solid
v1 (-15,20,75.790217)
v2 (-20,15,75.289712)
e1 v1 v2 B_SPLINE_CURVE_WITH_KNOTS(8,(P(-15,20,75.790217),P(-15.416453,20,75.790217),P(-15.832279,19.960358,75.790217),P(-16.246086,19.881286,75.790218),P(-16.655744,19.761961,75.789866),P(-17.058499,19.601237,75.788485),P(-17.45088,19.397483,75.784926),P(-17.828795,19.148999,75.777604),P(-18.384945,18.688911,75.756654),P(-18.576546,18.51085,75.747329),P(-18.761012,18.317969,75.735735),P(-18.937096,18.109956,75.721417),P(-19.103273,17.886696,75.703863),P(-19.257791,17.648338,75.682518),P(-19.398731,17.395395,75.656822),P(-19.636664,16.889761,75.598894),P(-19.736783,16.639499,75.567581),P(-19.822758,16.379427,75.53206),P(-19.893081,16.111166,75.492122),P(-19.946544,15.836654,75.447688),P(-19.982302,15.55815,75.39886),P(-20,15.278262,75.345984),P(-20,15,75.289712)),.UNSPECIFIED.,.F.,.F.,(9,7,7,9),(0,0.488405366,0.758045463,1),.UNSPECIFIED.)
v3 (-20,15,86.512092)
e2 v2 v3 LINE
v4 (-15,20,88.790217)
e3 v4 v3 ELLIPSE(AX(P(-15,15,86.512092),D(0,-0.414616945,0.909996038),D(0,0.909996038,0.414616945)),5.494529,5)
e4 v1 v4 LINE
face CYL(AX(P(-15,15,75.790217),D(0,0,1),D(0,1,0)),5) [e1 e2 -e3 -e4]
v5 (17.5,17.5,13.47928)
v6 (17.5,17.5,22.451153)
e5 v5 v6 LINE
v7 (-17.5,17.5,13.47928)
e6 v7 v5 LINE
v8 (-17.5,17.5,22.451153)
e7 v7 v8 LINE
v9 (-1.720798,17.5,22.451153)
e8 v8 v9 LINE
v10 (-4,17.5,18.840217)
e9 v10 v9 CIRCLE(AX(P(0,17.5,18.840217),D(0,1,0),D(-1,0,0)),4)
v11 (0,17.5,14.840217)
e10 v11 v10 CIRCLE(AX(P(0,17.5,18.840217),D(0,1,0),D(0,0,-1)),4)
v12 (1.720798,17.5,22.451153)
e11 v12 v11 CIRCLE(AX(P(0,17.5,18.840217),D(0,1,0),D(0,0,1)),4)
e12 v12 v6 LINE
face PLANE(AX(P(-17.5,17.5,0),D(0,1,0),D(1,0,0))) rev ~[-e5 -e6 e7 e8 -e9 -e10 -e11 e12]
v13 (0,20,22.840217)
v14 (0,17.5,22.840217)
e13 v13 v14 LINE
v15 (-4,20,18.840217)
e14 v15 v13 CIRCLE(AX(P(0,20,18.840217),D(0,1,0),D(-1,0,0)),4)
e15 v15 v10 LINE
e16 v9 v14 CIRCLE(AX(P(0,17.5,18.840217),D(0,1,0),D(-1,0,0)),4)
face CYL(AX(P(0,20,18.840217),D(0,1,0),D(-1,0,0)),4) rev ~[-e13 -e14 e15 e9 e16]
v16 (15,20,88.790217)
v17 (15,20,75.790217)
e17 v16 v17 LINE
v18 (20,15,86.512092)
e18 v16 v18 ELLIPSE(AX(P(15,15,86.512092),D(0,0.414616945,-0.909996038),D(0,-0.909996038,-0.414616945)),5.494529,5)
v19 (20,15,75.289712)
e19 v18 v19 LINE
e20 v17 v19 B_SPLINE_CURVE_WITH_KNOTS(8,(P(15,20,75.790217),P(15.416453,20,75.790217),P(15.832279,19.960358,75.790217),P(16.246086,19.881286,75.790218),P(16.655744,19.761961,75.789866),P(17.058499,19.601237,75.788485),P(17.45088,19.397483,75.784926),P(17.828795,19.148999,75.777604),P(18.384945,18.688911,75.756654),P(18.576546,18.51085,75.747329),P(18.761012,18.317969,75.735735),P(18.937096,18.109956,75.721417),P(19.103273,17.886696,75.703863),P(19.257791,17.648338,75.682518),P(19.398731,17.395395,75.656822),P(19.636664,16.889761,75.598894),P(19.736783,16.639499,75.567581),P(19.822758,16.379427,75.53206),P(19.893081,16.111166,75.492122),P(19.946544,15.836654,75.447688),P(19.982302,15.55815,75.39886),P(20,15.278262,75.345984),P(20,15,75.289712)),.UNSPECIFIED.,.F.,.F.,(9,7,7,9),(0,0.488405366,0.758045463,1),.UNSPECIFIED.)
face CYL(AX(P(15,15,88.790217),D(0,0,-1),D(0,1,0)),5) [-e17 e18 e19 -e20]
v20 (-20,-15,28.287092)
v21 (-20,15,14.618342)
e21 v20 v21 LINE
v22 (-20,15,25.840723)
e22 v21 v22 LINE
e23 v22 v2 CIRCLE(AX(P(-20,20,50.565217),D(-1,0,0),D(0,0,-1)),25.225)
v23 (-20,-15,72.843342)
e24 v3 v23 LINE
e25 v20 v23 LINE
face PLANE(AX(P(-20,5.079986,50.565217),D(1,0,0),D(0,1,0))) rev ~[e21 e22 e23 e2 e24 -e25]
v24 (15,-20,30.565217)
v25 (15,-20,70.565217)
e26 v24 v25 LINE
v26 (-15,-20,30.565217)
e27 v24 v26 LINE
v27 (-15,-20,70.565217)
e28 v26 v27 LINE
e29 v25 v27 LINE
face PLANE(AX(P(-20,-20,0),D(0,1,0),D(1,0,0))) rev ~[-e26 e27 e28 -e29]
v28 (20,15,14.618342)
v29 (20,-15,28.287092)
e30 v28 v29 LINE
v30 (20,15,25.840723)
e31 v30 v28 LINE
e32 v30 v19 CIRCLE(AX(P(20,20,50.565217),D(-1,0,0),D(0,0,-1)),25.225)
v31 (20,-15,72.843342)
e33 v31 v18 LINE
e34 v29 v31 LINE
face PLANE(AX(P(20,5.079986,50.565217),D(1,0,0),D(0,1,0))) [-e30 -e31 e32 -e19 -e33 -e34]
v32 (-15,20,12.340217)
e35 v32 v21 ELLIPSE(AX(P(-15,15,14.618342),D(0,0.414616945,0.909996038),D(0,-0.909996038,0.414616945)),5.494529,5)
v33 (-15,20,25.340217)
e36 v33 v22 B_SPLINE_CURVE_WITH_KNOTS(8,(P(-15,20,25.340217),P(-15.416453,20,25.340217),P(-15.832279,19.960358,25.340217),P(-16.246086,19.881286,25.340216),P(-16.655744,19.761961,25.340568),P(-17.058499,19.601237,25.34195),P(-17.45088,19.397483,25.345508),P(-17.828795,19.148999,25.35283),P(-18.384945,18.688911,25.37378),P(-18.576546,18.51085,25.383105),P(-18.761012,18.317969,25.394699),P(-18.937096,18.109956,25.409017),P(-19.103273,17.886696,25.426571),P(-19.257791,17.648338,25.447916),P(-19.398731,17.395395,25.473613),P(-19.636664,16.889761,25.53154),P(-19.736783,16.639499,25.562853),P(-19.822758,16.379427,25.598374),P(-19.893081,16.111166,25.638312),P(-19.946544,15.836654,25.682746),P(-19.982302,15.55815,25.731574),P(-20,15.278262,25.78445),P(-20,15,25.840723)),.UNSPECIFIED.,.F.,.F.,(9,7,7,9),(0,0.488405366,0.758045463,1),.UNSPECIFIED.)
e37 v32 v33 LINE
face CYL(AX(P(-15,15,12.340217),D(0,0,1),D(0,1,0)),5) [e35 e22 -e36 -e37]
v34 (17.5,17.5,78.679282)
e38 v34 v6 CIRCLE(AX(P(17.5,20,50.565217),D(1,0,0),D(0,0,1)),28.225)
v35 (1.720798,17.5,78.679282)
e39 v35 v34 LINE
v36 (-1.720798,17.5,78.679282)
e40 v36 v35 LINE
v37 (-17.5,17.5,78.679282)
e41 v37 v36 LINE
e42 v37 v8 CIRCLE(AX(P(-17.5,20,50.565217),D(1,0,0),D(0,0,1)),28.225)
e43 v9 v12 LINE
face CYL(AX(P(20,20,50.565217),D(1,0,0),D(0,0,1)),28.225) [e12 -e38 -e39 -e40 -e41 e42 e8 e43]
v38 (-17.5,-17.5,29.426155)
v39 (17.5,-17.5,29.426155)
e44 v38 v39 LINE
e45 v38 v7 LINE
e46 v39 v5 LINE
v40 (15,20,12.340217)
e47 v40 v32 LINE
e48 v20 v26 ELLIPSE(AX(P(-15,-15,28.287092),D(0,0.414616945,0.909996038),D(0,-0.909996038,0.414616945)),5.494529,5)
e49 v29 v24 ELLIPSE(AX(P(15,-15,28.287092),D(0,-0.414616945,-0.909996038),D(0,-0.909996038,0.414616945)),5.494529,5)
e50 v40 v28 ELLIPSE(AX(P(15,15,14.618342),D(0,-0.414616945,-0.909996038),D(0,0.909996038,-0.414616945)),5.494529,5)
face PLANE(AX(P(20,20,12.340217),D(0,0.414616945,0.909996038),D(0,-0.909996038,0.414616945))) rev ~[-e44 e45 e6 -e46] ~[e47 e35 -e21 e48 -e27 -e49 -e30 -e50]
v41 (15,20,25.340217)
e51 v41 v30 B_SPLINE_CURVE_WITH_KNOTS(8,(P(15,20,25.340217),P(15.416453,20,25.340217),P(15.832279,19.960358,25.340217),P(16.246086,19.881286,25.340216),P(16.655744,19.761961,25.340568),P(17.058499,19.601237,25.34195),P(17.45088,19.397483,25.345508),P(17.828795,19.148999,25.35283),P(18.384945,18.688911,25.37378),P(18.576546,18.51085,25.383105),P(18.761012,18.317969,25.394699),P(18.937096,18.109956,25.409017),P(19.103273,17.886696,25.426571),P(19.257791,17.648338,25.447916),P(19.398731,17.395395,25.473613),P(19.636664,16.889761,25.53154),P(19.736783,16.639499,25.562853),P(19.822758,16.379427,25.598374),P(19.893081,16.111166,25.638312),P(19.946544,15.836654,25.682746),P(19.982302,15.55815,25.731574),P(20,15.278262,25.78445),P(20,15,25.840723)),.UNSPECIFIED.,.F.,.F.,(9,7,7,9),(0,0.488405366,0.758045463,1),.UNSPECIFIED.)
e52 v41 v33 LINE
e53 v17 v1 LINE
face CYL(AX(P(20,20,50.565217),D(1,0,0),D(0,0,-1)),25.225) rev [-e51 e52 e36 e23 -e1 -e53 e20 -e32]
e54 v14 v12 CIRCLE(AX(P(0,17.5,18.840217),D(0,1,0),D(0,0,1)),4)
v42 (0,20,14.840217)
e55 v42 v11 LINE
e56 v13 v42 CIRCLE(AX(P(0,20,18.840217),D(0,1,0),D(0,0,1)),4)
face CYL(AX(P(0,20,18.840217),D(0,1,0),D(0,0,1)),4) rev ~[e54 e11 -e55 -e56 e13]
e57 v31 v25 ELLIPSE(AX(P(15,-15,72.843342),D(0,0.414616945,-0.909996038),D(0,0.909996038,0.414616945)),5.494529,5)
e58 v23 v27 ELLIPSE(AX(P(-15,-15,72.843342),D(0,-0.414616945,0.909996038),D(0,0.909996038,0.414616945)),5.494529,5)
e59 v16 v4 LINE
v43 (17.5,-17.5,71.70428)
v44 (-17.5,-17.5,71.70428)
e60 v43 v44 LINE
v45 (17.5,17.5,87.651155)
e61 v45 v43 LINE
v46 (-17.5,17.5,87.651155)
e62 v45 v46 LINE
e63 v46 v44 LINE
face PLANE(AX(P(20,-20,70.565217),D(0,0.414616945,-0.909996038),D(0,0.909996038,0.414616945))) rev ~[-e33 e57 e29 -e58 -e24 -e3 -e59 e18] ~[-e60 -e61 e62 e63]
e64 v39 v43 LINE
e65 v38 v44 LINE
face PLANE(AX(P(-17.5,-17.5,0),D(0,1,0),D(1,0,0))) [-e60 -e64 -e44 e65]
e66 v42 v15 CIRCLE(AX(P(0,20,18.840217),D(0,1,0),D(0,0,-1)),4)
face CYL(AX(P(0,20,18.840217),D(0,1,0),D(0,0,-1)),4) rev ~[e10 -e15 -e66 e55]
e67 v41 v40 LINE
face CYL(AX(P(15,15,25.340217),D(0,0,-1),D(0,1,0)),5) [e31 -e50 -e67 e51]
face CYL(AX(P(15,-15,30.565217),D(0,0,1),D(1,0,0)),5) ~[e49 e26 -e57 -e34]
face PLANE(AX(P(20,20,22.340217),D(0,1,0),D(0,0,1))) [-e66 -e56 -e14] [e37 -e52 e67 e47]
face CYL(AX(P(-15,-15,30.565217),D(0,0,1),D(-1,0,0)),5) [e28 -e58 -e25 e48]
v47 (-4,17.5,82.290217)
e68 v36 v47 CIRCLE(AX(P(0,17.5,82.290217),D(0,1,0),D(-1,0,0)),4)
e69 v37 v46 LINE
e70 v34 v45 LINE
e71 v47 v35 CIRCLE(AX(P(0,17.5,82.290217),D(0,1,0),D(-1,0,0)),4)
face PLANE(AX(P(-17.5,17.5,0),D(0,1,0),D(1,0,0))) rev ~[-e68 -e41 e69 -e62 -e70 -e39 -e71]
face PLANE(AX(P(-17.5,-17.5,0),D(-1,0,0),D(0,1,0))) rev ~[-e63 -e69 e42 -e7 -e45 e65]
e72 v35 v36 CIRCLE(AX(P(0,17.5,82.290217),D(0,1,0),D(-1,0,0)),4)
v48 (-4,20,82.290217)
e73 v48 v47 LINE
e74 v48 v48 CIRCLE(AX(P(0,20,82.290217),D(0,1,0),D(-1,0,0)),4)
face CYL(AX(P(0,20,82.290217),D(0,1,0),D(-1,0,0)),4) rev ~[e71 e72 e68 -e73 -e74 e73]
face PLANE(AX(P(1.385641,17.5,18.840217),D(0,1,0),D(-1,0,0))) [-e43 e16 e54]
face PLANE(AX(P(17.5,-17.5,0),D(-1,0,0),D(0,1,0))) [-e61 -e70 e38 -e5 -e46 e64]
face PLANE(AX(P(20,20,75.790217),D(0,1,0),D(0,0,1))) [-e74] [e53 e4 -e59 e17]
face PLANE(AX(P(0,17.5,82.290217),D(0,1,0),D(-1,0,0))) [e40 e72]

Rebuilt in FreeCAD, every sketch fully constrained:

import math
import FreeCAD as App
import Part
import Sketcher
from FreeCAD import Vector


def edges_at(feature, points):
    """Names of the edges that pass closest to the given points."""
    edges = feature.Shape.Edges
    near = lambda p: min(range(len(edges)), key=lambda i: edges[i].distToShape(Part.Vertex(*p))[0])
    return sorted({f"Edge{near(p) + 1}" for p in points})

doc = App.newDocument("Part")
params = doc.addObject("Spreadsheet::Sheet", "Params")
for row, (alias, value) in enumerate([
    ("sketch1_width", "40 mm"),
    ("sketch1_width2", "35 mm"),
    ("pad1_length", "100 mm"),
    ("sketch2_width", "40 mm"),
    ("sketch3_height", "3 mm"),
    ("pad2_length", "40 mm"),
    ("sketch4_diameter", "8 mm"),
    ("pocket2_length", "2.5 mm"),
    ("sketch5_radius", "4 mm"),
    ("pocket3_length", "2.5 mm"),
    ("fillet_radius", "5 mm"),
], start=1):
    params.set(f"A{row}", alias)
    params.set(f"B{row}", "=" + value)
    params.setAlias(f"B{row}", alias)

body = doc.addObject("PartDesign::Body", "Body")

sketch1 = doc.addObject("Sketcher::SketchObject", "Sketch")
body.addObject(sketch1)
sketch1.AttachmentSupport = (doc.XY_Plane, [""])
sketch1.MapMode = "FlatFace"
sketch1.addGeometry(Part.LineSegment(Vector(-20, 20, 0), Vector(-20, -20, 0)), False)
sketch1.addGeometry(Part.LineSegment(Vector(-20, -20, 0), Vector(20, -20, 0)), False)
sketch1.addGeometry(Part.LineSegment(Vector(20, -20, 0), Vector(20, 20, 0)), False)
sketch1.addGeometry(Part.LineSegment(Vector(20, 20, 0), Vector(-20, 20, 0)), False)
sketch1.addGeometry(Part.LineSegment(Vector(18, -18, 0), Vector(-18, -18, 0)), False)
sketch1.addGeometry(Part.LineSegment(Vector(-18, -18, 0), Vector(-18, 18, 0)), False)
sketch1.addGeometry(Part.LineSegment(Vector(-18, 18, 0), Vector(18, 18, 0)), False)
sketch1.addGeometry(Part.LineSegment(Vector(18, 18, 0), Vector(18, -18, 0)), False)
sketch1.addConstraint(Sketcher.Constraint("Coincident", 0, 2, 1, 1))
sketch1.addConstraint(Sketcher.Constraint("Coincident", 1, 2, 2, 1))
sketch1.addConstraint(Sketcher.Constraint("Coincident", 2, 2, 3, 1))
sketch1.addConstraint(Sketcher.Constraint("Coincident", 3, 2, 0, 1))
sketch1.addConstraint(Sketcher.Constraint("Coincident", 4, 2, 5, 1))
sketch1.addConstraint(Sketcher.Constraint("Coincident", 5, 2, 6, 1))
sketch1.addConstraint(Sketcher.Constraint("Coincident", 6, 2, 7, 1))
sketch1.addConstraint(Sketcher.Constraint("Coincident", 7, 2, 4, 1))
sketch1.addConstraint(Sketcher.Constraint("Vertical", 0))
sketch1.addConstraint(Sketcher.Constraint("Horizontal", 1))
sketch1.addConstraint(Sketcher.Constraint("Vertical", 2))
sketch1.addConstraint(Sketcher.Constraint("Horizontal", 3))
sketch1.addConstraint(Sketcher.Constraint("Horizontal", 4))
sketch1.addConstraint(Sketcher.Constraint("Vertical", 5))
sketch1.addConstraint(Sketcher.Constraint("Horizontal", 6))
sketch1.addConstraint(Sketcher.Constraint("Vertical", 7))
sketch1.addConstraint(Sketcher.Constraint("Symmetric", 0, 2, 2, 2, -1, 1))
sketch1.addConstraint(Sketcher.Constraint("Symmetric", 4, 2, 6, 2, -1, 1))
sketch1.addConstraint(Sketcher.Constraint("Equal", 3, 0))
sketch1.addConstraint(Sketcher.Constraint("Equal", 6, 5))
sketch1.addConstraint(Sketcher.Constraint("DistanceX", 1, 1, 1, 2, 40.0))
sketch1.addConstraint(Sketcher.Constraint("DistanceX", 4, 2, 4, 1, 35.0))
sketch1.setExpression("Constraints[20]", "Params.sketch1_width")
sketch1.setExpression("Constraints[21]", "Params.sketch1_width2")
pad1 = doc.addObject("PartDesign::Pad", "Pad")
body.addObject(pad1)
pad1.Profile = sketch1
pad1.setExpression("Length", "Params.pad1_length")

sketch2 = doc.addObject("Sketcher::SketchObject", "Sketch001")
body.addObject(sketch2)
sketch2.AttachmentSupport = (doc.YZ_Plane, [""])
sketch2.MapMode = "FlatFace"
sketch2.AttachmentOffset = App.Placement(Vector(0, 0, 20), App.Rotation())
sketch2.addGeometry(Part.ArcOfCircle(Part.Circle(Vector(20, 51, 0), Vector(0, 0, 1), 28), math.radians(90), math.radians(270)), False)
sketch2.addGeometry(Part.LineSegment(Vector(20, 22, 0), Vector(20, 79, 0)), False)
sketch2.addGeometry(Part.LineSegment(Vector(20, 0, 0), Vector(20, 12, 0)), False)
sketch2.addGeometry(Part.LineSegment(Vector(20, 12, 0), Vector(-20, 31, 0)), False)
sketch2.addGeometry(Part.LineSegment(Vector(-20, 31, 0), Vector(-20, 0, 0)), False)
sketch2.addGeometry(Part.LineSegment(Vector(-20, 0, 0), Vector(20, 0, 0)), False)
sketch2.addGeometry(Part.LineSegment(Vector(-20, 71, 0), Vector(20, 89, 0)), False)
sketch2.addGeometry(Part.LineSegment(Vector(20, 89, 0), Vector(20, 100, 0)), False)
sketch2.addGeometry(Part.LineSegment(Vector(20, 100, 0), Vector(-20, 100, 0)), False)
sketch2.addGeometry(Part.LineSegment(Vector(-20, 100, 0), Vector(-20, 71, 0)), False)
sketch2.addConstraint(Sketcher.Constraint("Coincident", 0, 1, 1, 2))
sketch2.addConstraint(Sketcher.Constraint("Coincident", 1, 1, 0, 2))
sketch2.addConstraint(Sketcher.Constraint("Coincident", 2, 2, 3, 1))
sketch2.addConstraint(Sketcher.Constraint("Coincident", 3, 2, 4, 1))
sketch2.addConstraint(Sketcher.Constraint("Coincident", 4, 2, 5, 1))
sketch2.addConstraint(Sketcher.Constraint("Coincident", 5, 2, 2, 1))
sketch2.addConstraint(Sketcher.Constraint("Coincident", 6, 2, 7, 1))
sketch2.addConstraint(Sketcher.Constraint("Coincident", 7, 2, 8, 1))
sketch2.addConstraint(Sketcher.Constraint("Coincident", 8, 2, 9, 1))
sketch2.addConstraint(Sketcher.Constraint("Coincident", 9, 2, 6, 1))
sketch2.addConstraint(Sketcher.Constraint("Vertical", 1))
sketch2.addConstraint(Sketcher.Constraint("Vertical", 2))
sketch2.addConstraint(Sketcher.Constraint("Vertical", 4))
sketch2.addConstraint(Sketcher.Constraint("Horizontal", 5))
sketch2.addConstraint(Sketcher.Constraint("Vertical", 7))
sketch2.addConstraint(Sketcher.Constraint("Horizontal", 8))
sketch2.addConstraint(Sketcher.Constraint("Vertical", 9))
sketch2.addConstraint(Sketcher.Constraint("Symmetric", 4, 2, 5, 2, -1, 1))
sketch2.addConstraint(Sketcher.Constraint("Vertical", 1, 1, 2, 2))
sketch2.addConstraint(Sketcher.Constraint("Vertical", 5, 2, 6, 2))
sketch2.addConstraint(Sketcher.Constraint("Vertical", 4, 2, 8, 2))
sketch2.addConstraint(Sketcher.Constraint("Equal", 3, 6))
sketch2.addConstraint(Sketcher.Constraint("DistanceX", 5, 1, 5, 2, 40.0))
sketch2.addConstraint(Sketcher.Constraint("DistanceX", -1, 1, 0, 3, 20.0))
sketch2.addConstraint(Sketcher.Constraint("DistanceY", -1, 1, 7, 2, 100.0))
sketch2.addConstraint(Sketcher.Constraint("Radius", 0, 28.225))
sketch2.addConstraint(Sketcher.Constraint("DistanceY", 2, 2, 1, 1, 10.0))
sketch2.addConstraint(Sketcher.Constraint("DistanceY", 3, 2, 0, 3, 20.0))
sketch2.addConstraint(Sketcher.Constraint("DistanceY", 0, 1, 6, 2, 10.0))
sketch2.addConstraint(Sketcher.Constraint("DistanceY", 2, 1, 2, 2, 12.340217))
sketch2.setExpression("Constraints[22]", "Params.sketch2_width")
pocket1 = doc.addObject("PartDesign::Pocket", "Pocket")
body.addObject(pocket1)
pocket1.Profile = sketch2
pocket1.Type = "ThroughAll"

sketch3 = doc.addObject("Sketcher::SketchObject", "Sketch002")
body.addObject(sketch3)
sketch3.AttachmentSupport = (doc.YZ_Plane, [""])
sketch3.MapMode = "FlatFace"
sketch3.AttachmentOffset = App.Placement(Vector(0, 0, 20), App.Rotation())
sketch3.addGeometry(Part.ArcOfCircle(Part.Circle(Vector(20, 50.6, 0), Vector(0, 0, 1), 25.2), math.radians(90), math.radians(270)), False)
sketch3.addGeometry(Part.LineSegment(Vector(20, 75.8, 0), Vector(20, 78.8, 0)), False)
sketch3.addGeometry(Part.ArcOfCircle(Part.Circle(Vector(20, 50.6, 0), Vector(0, 0, 1), 28.2), math.radians(90), math.radians(270)), False)
sketch3.addGeometry(Part.LineSegment(Vector(20, 22.3, 0), Vector(20, 25.3, 0)), False)
sketch3.addConstraint(Sketcher.Constraint("Coincident", 0, 1, 1, 1))
sketch3.addConstraint(Sketcher.Constraint("Coincident", 1, 2, 2, 1))
sketch3.addConstraint(Sketcher.Constraint("Coincident", 2, 2, 3, 1))
sketch3.addConstraint(Sketcher.Constraint("Coincident", 3, 2, 0, 2))
sketch3.addConstraint(Sketcher.Constraint("Vertical", 1))
sketch3.addConstraint(Sketcher.Constraint("Vertical", 3))
sketch3.addConstraint(Sketcher.Constraint("Coincident", 2, 3, 0, 3))
sketch3.addConstraint(Sketcher.Constraint("Vertical", 2, 3, 0, 1))
sketch3.addConstraint(Sketcher.Constraint("Vertical", 1, 2, 2, 2))
sketch3.addConstraint(Sketcher.Constraint("DistanceY", 1, 1, 1, 2, 3.0))
sketch3.addConstraint(Sketcher.Constraint("DistanceX", -1, 1, 0, 3, 20.0))
sketch3.addConstraint(Sketcher.Constraint("Radius", 0, 25.225))
sketch3.addConstraint(Sketcher.Constraint("DistanceY", -1, 1, 0, 3, 50.565217))
sketch3.setExpression("Constraints[9]", "Params.sketch3_height")
pad2 = doc.addObject("PartDesign::Pad", "Pad001")
body.addObject(pad2)
pad2.Profile = sketch3
pad2.setExpression("Length", "Params.pad2_length")
pad2.Reversed = True

sketch4 = doc.addObject("Sketcher::SketchObject", "Sketch003")
body.addObject(sketch4)
sketch4.AttachmentSupport = (doc.XZ_Plane, [""])
sketch4.MapMode = "FlatFace"
sketch4.AttachmentOffset = App.Placement(Vector(0, 0, -20), App.Rotation())
sketch4.addGeometry(Part.Circle(Vector(0, 82.3, 0), Vector(0, 0, 1), 4), False)
sketch4.addConstraint(Sketcher.Constraint("PointOnObject", 0, 3, -2))
sketch4.addConstraint(Sketcher.Constraint("Diameter", 0, 8.0))
sketch4.addConstraint(Sketcher.Constraint("DistanceY", -1, 1, 0, 3, 82.290217))
sketch4.setExpression("Constraints[1]", "Params.sketch4_diameter")
pocket2 = doc.addObject("PartDesign::Pocket", "Pocket001")
body.addObject(pocket2)
pocket2.Profile = sketch4
pocket2.setExpression("Length", "Params.pocket2_length")
pocket2.Reversed = True

sketch5 = doc.addObject("Sketcher::SketchObject", "Sketch004")
body.addObject(sketch5)
sketch5.AttachmentSupport = (doc.XZ_Plane, [""])
sketch5.MapMode = "FlatFace"
sketch5.AttachmentOffset = App.Placement(Vector(0, 0, -20), App.Rotation())
sketch5.addGeometry(Part.ArcOfCircle(Part.Circle(Vector(0, 18.8, 0), Vector(0, 0, 1), 4), math.radians(-90), math.radians(90)), False)
sketch5.addGeometry(Part.ArcOfCircle(Part.Circle(Vector(0, 18.8, 0), Vector(0, 0, 1), 4), math.radians(180), math.radians(270)), False)
sketch5.addGeometry(Part.ArcOfCircle(Part.Circle(Vector(0, 18.8, 0), Vector(0, 0, 1), 4), math.radians(90), math.radians(180)), False)
sketch5.addConstraint(Sketcher.Constraint("Tangent", 0, 1, 1, 2))
sketch5.addConstraint(Sketcher.Constraint("Tangent", 1, 1, 2, 2))
sketch5.addConstraint(Sketcher.Constraint("Tangent", 2, 1, 0, 2))
sketch5.addConstraint(Sketcher.Constraint("PointOnObject", 0, 3, -2))
sketch5.addConstraint(Sketcher.Constraint("PointOnObject", 0, 1, -2))
sketch5.addConstraint(Sketcher.Constraint("PointOnObject", 2, 1, -2))
sketch5.addConstraint(Sketcher.Constraint("Horizontal", 2, 3, 1, 1))
sketch5.addConstraint(Sketcher.Constraint("Radius", 0, 4.0))
sketch5.addConstraint(Sketcher.Constraint("DistanceY", -1, 1, 0, 3, 18.840217))
sketch5.setExpression("Constraints[7]", "Params.sketch5_radius")
pocket3 = doc.addObject("PartDesign::Pocket", "Pocket002")
body.addObject(pocket3)
pocket3.Profile = sketch5
pocket3.setExpression("Length", "Params.pocket3_length")
pocket3.Reversed = True
doc.recompute()

fillet = doc.addObject("PartDesign::Fillet", "Fillet")
body.addObject(fillet)
fillet.Base = (pocket3, edges_at(pocket3, [
    (-20, 20, 82.29),
    (-20, 20, 18.84),
    (-20, -20, 50.565),
    (20, -20, 50.565),
    (20, 20, 18.84),
    (20, 20, 82.29),
]))
fillet.setExpression("Radius", "Params.fillet_radius")

doc.recompute()
